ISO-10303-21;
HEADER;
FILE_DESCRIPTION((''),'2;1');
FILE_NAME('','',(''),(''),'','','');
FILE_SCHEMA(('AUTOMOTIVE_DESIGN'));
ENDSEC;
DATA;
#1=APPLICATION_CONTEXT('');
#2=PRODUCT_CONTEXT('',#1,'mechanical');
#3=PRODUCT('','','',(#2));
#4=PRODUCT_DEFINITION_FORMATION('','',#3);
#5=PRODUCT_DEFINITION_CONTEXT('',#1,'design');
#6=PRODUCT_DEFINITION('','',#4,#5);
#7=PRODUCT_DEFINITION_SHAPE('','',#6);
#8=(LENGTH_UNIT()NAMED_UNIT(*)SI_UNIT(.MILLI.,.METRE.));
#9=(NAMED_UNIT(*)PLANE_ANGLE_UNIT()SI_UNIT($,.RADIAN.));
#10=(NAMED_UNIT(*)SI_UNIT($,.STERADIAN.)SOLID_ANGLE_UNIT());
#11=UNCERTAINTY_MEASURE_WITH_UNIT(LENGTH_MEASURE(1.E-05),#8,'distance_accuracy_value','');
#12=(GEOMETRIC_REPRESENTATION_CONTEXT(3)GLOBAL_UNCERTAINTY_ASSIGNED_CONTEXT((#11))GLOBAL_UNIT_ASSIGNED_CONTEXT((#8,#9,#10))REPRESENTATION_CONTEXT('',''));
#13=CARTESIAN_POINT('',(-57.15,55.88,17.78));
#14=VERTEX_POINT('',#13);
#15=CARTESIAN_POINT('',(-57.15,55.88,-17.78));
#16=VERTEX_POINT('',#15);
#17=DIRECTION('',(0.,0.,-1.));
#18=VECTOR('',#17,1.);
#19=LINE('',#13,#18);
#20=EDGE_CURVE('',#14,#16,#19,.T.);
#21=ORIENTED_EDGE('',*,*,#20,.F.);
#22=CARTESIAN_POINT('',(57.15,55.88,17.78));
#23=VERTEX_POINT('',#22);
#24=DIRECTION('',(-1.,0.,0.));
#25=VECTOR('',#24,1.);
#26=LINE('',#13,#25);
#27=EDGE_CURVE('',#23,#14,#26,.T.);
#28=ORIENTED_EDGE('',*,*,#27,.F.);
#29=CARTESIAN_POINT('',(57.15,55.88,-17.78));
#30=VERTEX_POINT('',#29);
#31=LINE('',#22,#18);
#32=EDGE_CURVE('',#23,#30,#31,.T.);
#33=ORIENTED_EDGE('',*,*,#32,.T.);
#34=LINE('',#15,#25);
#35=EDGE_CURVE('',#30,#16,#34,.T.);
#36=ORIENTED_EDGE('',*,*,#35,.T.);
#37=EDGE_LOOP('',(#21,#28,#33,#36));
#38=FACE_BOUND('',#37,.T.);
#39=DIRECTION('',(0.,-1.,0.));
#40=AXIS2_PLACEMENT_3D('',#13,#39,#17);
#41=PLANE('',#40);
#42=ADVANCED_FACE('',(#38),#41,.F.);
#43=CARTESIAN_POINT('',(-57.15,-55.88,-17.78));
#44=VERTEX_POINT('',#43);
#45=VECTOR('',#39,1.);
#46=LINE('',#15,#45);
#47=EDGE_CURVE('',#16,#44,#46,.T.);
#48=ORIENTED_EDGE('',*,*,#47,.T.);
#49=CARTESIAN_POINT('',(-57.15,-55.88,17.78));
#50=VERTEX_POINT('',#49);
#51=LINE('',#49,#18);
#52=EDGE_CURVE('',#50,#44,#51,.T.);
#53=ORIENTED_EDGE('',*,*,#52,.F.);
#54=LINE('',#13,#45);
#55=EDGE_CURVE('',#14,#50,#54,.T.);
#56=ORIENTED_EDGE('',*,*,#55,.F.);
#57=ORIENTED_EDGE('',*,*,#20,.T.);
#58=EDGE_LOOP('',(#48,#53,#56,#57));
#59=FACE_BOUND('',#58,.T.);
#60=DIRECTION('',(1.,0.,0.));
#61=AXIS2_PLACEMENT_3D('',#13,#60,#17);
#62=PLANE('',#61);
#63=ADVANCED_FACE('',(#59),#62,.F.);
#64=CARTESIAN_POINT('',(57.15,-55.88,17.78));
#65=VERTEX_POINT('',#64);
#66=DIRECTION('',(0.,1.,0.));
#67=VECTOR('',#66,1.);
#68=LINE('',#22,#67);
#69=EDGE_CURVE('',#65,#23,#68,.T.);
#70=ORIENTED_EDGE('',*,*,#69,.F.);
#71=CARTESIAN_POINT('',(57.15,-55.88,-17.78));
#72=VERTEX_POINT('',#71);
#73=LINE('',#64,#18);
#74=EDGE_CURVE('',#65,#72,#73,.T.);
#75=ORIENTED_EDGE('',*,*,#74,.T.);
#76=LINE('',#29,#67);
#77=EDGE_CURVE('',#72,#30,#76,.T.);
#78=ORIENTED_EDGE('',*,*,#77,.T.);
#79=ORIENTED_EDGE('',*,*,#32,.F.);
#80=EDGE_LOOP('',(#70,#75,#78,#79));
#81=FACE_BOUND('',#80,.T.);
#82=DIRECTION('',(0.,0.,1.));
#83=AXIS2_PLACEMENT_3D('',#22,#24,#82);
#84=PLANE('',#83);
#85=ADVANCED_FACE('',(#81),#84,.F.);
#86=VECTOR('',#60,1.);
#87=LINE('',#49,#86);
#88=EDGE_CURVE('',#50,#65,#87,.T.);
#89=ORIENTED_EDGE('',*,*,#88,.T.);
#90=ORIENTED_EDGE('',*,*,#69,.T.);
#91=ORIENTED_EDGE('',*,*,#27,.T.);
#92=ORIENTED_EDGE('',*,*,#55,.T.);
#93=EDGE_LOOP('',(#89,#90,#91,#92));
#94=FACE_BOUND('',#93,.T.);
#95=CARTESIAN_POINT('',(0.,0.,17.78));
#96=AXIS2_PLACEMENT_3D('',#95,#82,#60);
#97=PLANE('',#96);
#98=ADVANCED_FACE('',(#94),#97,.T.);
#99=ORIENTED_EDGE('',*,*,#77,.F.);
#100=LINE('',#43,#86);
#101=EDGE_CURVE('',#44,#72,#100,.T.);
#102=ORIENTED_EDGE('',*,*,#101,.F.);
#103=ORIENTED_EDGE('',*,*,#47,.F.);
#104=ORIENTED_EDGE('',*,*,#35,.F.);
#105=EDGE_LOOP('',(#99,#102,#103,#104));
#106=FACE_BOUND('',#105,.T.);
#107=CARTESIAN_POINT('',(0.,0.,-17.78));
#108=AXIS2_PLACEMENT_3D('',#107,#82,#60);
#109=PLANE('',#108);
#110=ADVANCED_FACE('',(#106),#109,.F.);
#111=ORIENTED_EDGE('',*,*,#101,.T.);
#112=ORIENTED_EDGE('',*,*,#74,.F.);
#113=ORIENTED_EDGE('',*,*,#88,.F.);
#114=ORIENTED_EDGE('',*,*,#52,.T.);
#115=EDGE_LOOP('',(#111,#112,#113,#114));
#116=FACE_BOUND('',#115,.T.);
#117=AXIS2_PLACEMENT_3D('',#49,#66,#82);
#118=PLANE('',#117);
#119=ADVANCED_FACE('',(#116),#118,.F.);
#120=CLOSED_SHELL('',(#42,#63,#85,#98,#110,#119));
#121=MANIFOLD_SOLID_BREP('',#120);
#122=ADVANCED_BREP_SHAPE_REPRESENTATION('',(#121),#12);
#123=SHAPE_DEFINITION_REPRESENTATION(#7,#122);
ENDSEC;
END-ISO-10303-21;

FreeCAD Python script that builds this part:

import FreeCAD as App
import Part
import Sketcher
Q = App.Units.Quantity


def add_polygon(sketch, points):
    """Adds a closed chain of lines whose ends are joined by coincident constraints."""
    first, n = sketch.GeometryCount, len(points)
    for a, b in zip(points, points[1:] + points[:1]):
        sketch.addGeometry(Part.LineSegment(App.Vector(*a, 0), App.Vector(*b, 0)), False)
    for i in range(n):
        sketch.addConstraint(Sketcher.Constraint("Coincident", first + i, 2, first + (i + 1) % n, 1))

doc = App.newDocument("Part")
body = doc.addObject("PartDesign::Body", "Body")

# Sketch on XY plane
sketch1 = body.newObject("Sketcher::SketchObject", "Sketch")
sketch1.AttachmentSupport = (doc.getObject("XY_Plane"), [""])
sketch1.MapMode = "FlatFace"
add_polygon(sketch1, [(-57, 56), (-57, -56), (57, -56), (57, 56)])  # lines 0-3
sketch1.addConstraint([
    Sketcher.Constraint("Vertical", 0),
    Sketcher.Constraint("Horizontal", 1),
    Sketcher.Constraint("Vertical", 2),
    Sketcher.Constraint("Horizontal", 3),
    Sketcher.Constraint("Symmetric", 0, 2, 2, 2, -1, 1),
    Sketcher.Constraint("DistanceX", 1, 1, 1, 2, Q("4.5 in")),
    Sketcher.Constraint("DistanceY", 0, 2, 0, 1, Q("4.4 in")),
])
pad1 = body.newObject("PartDesign::Pad", "Pad")
pad1.Profile = sketch1
pad1.Length = Q("1.4 in")
pad1.Midplane = True

doc.recompute()
